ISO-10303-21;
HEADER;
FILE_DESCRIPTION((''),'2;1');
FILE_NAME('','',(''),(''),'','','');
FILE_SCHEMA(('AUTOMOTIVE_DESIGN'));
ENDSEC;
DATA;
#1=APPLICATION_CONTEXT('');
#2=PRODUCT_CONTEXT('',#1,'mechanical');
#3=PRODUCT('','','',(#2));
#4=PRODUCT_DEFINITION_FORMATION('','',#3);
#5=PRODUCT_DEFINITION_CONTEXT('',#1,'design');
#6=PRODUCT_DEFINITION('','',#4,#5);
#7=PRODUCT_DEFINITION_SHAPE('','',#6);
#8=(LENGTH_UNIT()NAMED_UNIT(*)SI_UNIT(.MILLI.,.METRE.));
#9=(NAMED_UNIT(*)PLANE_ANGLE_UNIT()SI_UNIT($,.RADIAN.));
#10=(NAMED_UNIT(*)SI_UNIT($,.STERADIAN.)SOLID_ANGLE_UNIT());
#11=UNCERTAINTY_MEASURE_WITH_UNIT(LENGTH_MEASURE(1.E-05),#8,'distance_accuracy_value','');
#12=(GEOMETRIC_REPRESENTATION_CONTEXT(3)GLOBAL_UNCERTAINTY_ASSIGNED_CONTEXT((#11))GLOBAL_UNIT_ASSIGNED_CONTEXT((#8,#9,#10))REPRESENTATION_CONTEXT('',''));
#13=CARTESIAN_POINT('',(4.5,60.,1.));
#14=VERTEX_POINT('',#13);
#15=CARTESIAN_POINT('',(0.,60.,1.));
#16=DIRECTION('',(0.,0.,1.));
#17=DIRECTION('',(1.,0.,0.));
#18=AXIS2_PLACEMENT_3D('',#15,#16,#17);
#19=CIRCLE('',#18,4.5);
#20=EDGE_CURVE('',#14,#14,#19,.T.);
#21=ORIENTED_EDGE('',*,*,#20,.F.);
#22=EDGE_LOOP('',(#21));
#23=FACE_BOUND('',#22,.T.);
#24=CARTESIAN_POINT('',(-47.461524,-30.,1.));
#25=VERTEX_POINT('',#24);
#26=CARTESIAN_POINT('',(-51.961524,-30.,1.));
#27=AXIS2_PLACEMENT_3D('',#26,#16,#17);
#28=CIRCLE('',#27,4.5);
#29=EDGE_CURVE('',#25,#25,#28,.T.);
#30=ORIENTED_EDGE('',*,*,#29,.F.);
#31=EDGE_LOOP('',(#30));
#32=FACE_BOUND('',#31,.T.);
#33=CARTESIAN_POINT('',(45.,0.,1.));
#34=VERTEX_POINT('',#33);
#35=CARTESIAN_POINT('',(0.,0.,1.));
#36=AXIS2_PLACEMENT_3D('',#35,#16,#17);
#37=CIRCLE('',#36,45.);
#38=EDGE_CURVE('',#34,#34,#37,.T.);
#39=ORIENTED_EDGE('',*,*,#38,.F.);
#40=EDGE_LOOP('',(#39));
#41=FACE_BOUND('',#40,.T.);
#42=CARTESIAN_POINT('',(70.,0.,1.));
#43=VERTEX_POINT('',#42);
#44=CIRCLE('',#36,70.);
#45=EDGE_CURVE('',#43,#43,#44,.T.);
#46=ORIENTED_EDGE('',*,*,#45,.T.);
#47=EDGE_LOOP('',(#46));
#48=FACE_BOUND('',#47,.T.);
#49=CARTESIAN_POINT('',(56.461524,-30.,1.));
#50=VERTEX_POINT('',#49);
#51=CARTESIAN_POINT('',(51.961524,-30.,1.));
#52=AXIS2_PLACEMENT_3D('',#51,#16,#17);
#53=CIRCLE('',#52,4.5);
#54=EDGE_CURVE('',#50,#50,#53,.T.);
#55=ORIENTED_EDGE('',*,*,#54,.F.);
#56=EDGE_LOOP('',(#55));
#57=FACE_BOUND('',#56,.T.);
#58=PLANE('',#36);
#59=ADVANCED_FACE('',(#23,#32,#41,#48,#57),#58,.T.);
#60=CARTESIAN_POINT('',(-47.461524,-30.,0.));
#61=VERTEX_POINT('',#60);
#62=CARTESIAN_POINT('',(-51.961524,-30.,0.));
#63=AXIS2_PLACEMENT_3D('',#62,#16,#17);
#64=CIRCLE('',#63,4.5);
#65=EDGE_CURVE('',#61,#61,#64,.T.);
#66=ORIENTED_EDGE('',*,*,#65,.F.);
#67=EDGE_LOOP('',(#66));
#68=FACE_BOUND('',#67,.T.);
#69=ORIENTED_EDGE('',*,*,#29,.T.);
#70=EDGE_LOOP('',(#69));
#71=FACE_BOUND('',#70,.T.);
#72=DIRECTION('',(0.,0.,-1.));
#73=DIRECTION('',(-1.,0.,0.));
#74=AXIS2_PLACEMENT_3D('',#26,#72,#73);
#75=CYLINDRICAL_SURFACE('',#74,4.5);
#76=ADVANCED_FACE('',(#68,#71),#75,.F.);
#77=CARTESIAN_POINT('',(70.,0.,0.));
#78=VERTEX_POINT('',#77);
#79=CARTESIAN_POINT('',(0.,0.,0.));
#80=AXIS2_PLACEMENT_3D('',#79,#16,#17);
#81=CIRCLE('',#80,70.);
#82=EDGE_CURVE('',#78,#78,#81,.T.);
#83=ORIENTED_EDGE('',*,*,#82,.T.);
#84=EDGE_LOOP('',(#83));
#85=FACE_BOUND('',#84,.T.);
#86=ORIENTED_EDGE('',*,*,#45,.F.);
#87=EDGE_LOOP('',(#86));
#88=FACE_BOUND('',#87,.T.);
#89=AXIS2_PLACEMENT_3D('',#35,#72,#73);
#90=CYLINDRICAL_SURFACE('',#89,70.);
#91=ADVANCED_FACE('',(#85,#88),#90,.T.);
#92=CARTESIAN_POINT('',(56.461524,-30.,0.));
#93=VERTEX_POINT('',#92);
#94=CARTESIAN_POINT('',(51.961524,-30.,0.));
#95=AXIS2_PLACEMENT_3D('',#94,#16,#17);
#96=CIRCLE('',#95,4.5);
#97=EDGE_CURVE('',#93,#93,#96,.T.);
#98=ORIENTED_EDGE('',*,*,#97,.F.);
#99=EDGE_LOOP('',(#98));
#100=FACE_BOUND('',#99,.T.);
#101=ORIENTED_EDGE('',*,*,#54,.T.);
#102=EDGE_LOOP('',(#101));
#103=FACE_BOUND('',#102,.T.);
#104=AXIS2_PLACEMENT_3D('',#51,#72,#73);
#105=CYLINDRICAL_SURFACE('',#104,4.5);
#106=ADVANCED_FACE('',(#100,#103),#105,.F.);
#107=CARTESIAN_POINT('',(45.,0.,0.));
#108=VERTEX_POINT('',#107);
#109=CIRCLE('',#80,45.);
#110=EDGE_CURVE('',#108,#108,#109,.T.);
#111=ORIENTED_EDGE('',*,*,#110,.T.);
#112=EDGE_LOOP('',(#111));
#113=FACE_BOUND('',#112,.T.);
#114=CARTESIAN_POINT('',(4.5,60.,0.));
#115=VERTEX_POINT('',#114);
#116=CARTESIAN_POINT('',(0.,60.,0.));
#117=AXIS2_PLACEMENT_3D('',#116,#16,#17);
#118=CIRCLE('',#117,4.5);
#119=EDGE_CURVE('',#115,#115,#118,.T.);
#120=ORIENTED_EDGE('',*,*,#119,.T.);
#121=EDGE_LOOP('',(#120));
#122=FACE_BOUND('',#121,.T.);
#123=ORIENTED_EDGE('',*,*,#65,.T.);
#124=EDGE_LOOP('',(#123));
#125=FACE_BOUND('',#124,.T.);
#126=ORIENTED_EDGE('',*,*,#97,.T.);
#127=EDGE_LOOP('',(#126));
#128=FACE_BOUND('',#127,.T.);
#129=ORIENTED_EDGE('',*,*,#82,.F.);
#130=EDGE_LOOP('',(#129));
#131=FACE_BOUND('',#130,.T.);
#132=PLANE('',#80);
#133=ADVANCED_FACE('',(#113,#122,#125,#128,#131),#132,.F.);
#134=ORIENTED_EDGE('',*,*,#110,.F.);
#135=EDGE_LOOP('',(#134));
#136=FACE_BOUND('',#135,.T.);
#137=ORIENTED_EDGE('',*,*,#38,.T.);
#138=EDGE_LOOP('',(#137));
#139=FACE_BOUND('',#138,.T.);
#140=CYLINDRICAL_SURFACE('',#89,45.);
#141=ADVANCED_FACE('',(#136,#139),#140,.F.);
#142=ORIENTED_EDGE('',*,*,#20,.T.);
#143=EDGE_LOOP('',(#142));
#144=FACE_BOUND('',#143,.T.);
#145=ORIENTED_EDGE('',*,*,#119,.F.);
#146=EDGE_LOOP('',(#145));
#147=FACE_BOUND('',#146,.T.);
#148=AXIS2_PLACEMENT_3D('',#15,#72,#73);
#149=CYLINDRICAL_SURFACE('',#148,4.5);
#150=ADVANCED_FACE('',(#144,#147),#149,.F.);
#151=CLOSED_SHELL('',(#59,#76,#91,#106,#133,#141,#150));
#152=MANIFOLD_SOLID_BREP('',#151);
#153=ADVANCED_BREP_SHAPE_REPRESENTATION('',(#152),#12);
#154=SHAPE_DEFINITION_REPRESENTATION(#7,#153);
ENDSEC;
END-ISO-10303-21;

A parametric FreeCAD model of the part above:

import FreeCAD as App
import Part
import Sketcher

doc = App.newDocument("Part")
body = doc.addObject("PartDesign::Body", "Body")

# Sketch on XY plane
sketch1 = body.newObject("Sketcher::SketchObject", "Sketch")
sketch1.AttachmentSupport = (doc.getObject("XY_Plane"), [""])
sketch1.MapMode = "FlatFace"
sketch1.addGeometry([
    Part.Circle(App.Vector(0, 0, 0), App.Vector(0, 0, 1), 70),  # 0
    Part.Circle(App.Vector(-52, -30, 0), App.Vector(0, 0, 1), 4.5),  # 1
    Part.Circle(App.Vector(52, -30, 0), App.Vector(0, 0, 1), 4.5),  # 2
    Part.Circle(App.Vector(0, 0, 0), App.Vector(0, 0, 1), 45),  # 3
    Part.Circle(App.Vector(0, 60, 0), App.Vector(0, 0, 1), 4.5),  # 4
], False)
sketch1.addConstraint([
    Sketcher.Constraint("Coincident", 0, 3, -1, 1),
    Sketcher.Constraint("Coincident", 3, 3, -1, 1),
    Sketcher.Constraint("Equal", 1, 2),
    Sketcher.Constraint("Equal", 2, 4),
    Sketcher.Constraint("Symmetric", 1, 3, 2, 3, -2),
    Sketcher.Constraint("PointOnObject", 4, 3, -2),
    Sketcher.Constraint("Diameter", 0, 140.0),
    Sketcher.Constraint("Diameter", 1, 9.0),
    Sketcher.Constraint("Diameter", 3, 90.0),
    Sketcher.Constraint("DistanceY", 1, 3, -1, 1, 30.0),
    Sketcher.Constraint("DistanceY", -1, 1, 4, 3, 60.0),
    Sketcher.Constraint("DistanceX", 1, 3, 2, 3, 103.923048),
])
pad1 = body.newObject("PartDesign::Pad", "Pad")
pad1.Profile = sketch1
pad1.Length = 1

doc.recompute()
